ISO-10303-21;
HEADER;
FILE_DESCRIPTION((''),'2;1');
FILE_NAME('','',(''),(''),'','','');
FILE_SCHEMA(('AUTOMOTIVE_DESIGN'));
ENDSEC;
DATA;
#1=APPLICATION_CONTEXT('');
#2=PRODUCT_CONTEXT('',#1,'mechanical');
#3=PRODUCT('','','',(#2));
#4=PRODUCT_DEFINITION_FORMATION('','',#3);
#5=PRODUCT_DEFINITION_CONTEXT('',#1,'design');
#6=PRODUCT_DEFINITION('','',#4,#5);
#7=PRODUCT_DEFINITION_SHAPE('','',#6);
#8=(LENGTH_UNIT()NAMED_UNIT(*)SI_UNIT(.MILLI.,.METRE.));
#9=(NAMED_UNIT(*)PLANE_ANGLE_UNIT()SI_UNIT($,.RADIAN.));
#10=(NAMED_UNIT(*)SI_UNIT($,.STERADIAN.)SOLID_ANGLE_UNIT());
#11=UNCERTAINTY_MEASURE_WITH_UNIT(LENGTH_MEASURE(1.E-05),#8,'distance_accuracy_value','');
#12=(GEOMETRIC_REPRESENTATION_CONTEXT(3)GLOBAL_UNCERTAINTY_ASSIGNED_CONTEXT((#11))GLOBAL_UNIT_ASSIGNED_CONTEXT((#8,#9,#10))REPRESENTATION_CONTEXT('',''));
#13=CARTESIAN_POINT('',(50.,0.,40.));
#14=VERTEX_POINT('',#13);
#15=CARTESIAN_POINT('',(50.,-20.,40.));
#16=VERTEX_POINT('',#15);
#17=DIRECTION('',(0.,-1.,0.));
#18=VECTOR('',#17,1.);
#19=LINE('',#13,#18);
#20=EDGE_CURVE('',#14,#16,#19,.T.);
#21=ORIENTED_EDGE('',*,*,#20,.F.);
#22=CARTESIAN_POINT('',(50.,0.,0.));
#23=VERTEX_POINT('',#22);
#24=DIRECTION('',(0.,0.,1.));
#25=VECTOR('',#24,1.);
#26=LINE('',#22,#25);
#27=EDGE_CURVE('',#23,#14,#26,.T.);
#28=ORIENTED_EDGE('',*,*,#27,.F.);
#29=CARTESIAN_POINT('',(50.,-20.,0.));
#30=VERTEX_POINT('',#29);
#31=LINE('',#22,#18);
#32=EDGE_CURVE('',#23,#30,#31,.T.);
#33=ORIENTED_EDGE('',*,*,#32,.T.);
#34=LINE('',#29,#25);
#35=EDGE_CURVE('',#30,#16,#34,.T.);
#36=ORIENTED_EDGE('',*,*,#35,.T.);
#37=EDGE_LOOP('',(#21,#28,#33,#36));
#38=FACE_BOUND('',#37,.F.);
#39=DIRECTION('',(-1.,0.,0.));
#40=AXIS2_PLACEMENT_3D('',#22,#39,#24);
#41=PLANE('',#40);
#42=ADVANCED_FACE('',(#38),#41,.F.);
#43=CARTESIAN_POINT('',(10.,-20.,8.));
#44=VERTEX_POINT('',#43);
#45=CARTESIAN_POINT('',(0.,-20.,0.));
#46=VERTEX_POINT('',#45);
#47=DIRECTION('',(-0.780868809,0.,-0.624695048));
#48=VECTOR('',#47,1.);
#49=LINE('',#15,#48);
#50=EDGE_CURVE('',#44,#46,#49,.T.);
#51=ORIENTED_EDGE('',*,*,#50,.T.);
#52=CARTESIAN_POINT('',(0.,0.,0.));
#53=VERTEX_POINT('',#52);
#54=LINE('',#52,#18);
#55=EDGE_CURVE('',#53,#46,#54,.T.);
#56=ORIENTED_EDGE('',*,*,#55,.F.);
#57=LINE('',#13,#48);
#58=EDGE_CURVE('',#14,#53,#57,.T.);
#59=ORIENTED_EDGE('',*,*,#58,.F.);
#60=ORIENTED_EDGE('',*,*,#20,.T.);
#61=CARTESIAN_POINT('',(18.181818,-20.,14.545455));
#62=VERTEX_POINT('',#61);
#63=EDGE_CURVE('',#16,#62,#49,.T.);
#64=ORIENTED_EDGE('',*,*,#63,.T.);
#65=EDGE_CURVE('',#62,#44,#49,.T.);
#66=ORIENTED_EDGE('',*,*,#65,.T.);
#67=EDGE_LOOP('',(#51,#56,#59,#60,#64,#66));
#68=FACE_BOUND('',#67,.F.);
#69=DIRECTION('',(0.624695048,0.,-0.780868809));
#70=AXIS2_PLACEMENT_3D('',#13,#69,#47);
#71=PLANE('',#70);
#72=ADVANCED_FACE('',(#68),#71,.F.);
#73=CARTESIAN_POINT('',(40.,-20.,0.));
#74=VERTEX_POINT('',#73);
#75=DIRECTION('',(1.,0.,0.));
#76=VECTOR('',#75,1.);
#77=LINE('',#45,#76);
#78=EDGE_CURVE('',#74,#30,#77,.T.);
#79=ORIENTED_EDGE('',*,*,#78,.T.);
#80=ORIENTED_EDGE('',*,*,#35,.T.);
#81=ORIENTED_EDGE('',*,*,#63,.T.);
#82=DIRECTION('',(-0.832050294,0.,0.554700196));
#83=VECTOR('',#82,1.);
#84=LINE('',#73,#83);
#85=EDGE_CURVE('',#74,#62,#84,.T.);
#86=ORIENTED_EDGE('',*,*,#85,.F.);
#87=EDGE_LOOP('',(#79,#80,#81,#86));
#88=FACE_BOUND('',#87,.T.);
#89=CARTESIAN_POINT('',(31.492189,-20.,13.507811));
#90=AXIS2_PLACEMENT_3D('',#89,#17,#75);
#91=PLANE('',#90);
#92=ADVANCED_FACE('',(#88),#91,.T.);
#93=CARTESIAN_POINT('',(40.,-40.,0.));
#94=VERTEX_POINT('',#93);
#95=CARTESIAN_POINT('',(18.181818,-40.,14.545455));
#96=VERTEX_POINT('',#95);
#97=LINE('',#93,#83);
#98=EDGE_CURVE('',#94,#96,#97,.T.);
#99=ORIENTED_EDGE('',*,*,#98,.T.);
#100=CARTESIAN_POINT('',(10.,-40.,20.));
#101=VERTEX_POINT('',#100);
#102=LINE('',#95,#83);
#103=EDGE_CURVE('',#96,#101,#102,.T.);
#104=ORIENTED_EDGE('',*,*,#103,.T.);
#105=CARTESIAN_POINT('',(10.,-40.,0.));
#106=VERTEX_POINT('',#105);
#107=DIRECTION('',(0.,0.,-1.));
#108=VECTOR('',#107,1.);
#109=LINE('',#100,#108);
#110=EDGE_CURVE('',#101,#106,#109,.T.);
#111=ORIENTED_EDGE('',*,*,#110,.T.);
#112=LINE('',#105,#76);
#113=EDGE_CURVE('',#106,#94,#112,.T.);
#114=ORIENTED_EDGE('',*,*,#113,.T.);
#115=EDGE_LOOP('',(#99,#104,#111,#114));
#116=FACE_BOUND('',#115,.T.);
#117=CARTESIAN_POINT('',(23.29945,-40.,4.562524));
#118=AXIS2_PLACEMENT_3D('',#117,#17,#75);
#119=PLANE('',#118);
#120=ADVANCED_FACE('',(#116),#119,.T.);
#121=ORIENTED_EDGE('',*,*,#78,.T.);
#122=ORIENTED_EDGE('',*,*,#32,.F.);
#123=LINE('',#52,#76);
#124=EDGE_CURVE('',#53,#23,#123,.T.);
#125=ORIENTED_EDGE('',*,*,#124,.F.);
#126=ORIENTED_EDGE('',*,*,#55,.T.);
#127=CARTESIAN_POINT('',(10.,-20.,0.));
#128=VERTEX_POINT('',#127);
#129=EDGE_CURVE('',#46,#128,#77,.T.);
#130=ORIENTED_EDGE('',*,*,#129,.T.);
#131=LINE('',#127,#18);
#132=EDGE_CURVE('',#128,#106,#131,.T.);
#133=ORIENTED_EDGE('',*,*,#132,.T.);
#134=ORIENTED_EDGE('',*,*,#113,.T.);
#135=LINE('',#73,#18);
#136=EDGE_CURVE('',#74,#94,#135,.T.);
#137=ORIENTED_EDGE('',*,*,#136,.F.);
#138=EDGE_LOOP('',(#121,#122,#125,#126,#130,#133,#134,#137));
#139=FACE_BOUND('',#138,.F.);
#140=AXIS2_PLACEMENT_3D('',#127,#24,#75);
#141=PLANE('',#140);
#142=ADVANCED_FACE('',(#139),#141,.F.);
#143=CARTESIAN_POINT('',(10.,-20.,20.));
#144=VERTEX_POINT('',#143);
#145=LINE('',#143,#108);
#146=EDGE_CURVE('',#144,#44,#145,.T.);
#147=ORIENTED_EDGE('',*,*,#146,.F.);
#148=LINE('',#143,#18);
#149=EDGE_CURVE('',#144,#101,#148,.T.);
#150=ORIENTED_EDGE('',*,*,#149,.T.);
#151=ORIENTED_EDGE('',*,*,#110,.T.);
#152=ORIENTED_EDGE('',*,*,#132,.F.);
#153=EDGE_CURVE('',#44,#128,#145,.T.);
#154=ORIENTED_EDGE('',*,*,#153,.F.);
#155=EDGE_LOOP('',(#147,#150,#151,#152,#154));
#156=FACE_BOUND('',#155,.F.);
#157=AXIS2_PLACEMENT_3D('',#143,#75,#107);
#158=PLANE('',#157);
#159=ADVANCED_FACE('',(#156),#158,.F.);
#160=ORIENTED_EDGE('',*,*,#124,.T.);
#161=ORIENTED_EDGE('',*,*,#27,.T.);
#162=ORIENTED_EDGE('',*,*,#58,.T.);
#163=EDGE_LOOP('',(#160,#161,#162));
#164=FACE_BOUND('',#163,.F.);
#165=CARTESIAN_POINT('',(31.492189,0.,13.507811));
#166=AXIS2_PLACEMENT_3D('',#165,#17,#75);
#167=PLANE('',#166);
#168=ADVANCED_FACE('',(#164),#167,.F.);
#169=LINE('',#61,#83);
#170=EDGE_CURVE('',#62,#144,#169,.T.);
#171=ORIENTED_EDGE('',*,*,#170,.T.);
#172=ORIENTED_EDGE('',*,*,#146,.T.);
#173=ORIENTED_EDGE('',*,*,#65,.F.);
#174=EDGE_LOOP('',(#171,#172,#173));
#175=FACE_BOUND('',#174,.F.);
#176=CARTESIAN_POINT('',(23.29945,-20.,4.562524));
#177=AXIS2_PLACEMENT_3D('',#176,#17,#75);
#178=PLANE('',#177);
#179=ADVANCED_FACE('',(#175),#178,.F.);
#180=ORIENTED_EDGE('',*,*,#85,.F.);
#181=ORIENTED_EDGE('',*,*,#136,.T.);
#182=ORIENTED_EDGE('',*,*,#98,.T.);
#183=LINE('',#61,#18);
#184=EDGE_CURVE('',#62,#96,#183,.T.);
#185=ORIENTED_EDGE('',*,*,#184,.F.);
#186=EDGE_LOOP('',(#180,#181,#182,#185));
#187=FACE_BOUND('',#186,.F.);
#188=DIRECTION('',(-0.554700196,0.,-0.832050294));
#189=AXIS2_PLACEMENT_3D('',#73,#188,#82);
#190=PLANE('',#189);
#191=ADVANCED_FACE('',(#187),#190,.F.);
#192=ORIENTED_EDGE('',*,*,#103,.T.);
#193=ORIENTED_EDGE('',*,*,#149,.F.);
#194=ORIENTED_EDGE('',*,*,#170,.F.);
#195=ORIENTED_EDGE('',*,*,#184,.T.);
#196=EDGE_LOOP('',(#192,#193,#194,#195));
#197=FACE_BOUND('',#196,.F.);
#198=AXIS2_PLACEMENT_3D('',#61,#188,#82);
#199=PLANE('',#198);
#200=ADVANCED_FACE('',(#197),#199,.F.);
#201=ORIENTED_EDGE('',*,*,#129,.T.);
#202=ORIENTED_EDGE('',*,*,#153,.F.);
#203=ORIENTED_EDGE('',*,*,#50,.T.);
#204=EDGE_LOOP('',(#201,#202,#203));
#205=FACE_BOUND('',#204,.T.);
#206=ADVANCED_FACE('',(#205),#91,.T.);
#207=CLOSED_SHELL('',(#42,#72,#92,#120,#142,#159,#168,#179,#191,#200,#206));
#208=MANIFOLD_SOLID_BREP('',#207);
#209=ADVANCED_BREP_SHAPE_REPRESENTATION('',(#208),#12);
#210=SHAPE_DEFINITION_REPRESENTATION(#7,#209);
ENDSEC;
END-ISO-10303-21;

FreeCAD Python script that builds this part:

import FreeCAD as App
import Part
import Sketcher
Q = App.Units.Quantity

doc = App.newDocument("Part")
params = doc.addObject("Spreadsheet::Sheet", "Params")
for row, (alias, value) in enumerate([
    ("sketch1_width", "50 mm"),
    ("sketch1_height", "40 mm"),
    ("pad1_length", "20 mm"),
    ("sketch2_width", "30 mm"),
    ("sketch2_height", "20 mm"),
    ("pad2_length", "20 mm"),
], start=1):
    params.set(f"A{row}", alias)
    params.set(f"B{row}", "=" + value)
    params.setAlias(f"B{row}", alias)

body = doc.addObject("PartDesign::Body", "Body")

sketch1 = body.newObject("Sketcher::SketchObject", "Sketch")
sketch1.AttachmentSupport = (doc.getObject("XZ_Plane"), [""])
sketch1.MapMode = "FlatFace"
sketch1.addGeometry([
    Part.LineSegment(App.Vector(50, 40, 0), App.Vector(0, 0, 0)),
    Part.LineSegment(App.Vector(0, 0, 0), App.Vector(50, 0, 0)),
    Part.LineSegment(App.Vector(50, 0, 0), App.Vector(50, 40, 0)),
], False)
sketch1.addConstraint([
    Sketcher.Constraint("Coincident", 0, 2, 1, 1),
    Sketcher.Constraint("Coincident", 1, 2, 2, 1),
    Sketcher.Constraint("Coincident", 2, 2, 0, 1),
    Sketcher.Constraint("Horizontal", 1),
    Sketcher.Constraint("Vertical", 2),
    Sketcher.Constraint("Coincident", 0, 2, -1, 1),
    Sketcher.Constraint("DistanceX", 1, 1, 1, 2, Q("50 mm")),
    Sketcher.Constraint("DistanceY", 2, 1, 2, 2, Q("40 mm")),
])
sketch1.setExpression("Constraints[6]", "Params.sketch1_width")
sketch1.setExpression("Constraints[7]", "Params.sketch1_height")
pad1 = body.newObject("PartDesign::Pad", "Pad")
pad1.Profile = sketch1
pad1.setExpression("Length", "Params.pad1_length")

sketch2 = body.newObject("Sketcher::SketchObject", "Sketch001")
sketch2.AttachmentSupport = (doc.getObject("XZ_Plane"), [""])
sketch2.MapMode = "FlatFace"
sketch2.AttachmentOffset = App.Placement(App.Vector(0, 0, 20), App.Rotation())
sketch2.addGeometry([
    Part.LineSegment(App.Vector(10, 0, 0), App.Vector(40, 0, 0)),
    Part.LineSegment(App.Vector(40, 0, 0), App.Vector(18, 15, 0)),
    Part.LineSegment(App.Vector(18, 15, 0), App.Vector(10, 20, 0)),
    Part.LineSegment(App.Vector(10, 20, 0), App.Vector(10, 0, 0)),
], False)
sketch2.addConstraint([
    Sketcher.Constraint("Coincident", 0, 2, 1, 1),
    Sketcher.Constraint("Coincident", 1, 2, 2, 1),
    Sketcher.Constraint("Coincident", 2, 2, 3, 1),
    Sketcher.Constraint("Coincident", 3, 2, 0, 1),
    Sketcher.Constraint("Horizontal", 0),
    Sketcher.Constraint("Vertical", 3),
    Sketcher.Constraint("PointOnObject", 0, 2, -1),
    Sketcher.Constraint("Parallel", 1, 2),
    Sketcher.Constraint("DistanceX", 0, 1, 0, 2, Q("30 mm")),
    Sketcher.Constraint("DistanceY", 3, 2, 3, 1, Q("20 mm")),
    Sketcher.Constraint("DistanceX", -1, 1, 0, 2, Q("40 mm")),
    Sketcher.Constraint("Distance", 1, Q("26.222191 mm")),
])
sketch2.setExpression("Constraints[8]", "Params.sketch2_width")
sketch2.setExpression("Constraints[9]", "Params.sketch2_height")
pad2 = body.newObject("PartDesign::Pad", "Pad001")
pad2.Profile = sketch2
pad2.setExpression("Length", "Params.pad2_length")

doc.recompute()
